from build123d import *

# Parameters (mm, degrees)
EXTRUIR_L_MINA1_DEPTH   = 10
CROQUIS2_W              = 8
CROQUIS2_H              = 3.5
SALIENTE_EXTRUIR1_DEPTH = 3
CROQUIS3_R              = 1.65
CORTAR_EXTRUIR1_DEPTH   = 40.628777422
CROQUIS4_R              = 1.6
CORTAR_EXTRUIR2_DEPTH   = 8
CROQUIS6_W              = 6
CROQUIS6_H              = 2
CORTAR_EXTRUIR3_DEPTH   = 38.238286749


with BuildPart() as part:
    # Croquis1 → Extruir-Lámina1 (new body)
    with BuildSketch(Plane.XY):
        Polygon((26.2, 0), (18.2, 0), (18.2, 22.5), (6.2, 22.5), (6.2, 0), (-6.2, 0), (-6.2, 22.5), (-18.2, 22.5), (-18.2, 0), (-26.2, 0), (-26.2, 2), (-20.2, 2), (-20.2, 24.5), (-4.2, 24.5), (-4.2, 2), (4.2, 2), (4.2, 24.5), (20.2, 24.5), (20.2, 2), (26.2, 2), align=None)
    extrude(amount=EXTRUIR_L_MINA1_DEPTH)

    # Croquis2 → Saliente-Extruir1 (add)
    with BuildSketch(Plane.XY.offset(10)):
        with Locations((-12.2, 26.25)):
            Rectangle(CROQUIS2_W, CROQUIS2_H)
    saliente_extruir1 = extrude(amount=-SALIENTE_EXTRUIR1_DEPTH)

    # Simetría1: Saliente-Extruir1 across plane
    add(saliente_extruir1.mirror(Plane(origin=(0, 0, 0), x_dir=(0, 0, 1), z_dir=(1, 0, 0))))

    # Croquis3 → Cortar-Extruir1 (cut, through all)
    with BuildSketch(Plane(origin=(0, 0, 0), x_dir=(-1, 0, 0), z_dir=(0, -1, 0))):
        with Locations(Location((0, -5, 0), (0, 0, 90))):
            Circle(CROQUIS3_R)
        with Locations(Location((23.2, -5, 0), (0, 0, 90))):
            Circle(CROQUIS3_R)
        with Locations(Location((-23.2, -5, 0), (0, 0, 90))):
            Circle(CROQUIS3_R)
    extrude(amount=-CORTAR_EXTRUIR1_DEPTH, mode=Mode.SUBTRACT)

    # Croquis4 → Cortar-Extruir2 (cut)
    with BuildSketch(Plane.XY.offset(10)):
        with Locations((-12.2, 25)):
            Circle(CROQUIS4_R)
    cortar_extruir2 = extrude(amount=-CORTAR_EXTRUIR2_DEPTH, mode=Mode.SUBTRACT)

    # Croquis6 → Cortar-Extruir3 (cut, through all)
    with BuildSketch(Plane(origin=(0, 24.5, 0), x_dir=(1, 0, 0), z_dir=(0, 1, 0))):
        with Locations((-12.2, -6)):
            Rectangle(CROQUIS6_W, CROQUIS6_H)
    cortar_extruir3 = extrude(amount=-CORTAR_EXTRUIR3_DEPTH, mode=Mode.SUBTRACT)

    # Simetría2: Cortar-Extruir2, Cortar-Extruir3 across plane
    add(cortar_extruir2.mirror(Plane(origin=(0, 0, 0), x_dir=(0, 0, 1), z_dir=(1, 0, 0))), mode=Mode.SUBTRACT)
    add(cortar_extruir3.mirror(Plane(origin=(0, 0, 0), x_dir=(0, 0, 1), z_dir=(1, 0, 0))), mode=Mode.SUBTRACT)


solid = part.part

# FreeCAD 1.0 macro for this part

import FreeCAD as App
import Part
import Sketcher

doc = App.newDocument("Part")
body = doc.addObject("PartDesign::Body", "Body")

# Sketch on XY plane
sketch1 = body.newObject("Sketcher::SketchObject", "Sketch")
sketch1.AttachmentSupport = (doc.getObject("XY_Plane"), [""])
sketch1.MapMode = "FlatFace"
sketch1.addGeometry(Part.LineSegment(App.Vector(18.2, 0, 0), App.Vector(26.2, 0, 0)), False)
sketch1.addGeometry(Part.LineSegment(App.Vector(26.2, 0, 0), App.Vector(26.2, 2, 0)), False)
sketch1.addGeometry(Part.LineSegment(App.Vector(26.2, 2, 0), App.Vector(20.2, 2, 0)), False)
sketch1.addGeometry(Part.LineSegment(App.Vector(20.2, 2, 0), App.Vector(20.2, 24.5, 0)), False)
sketch1.addGeometry(Part.LineSegment(App.Vector(20.2, 24.5, 0), App.Vector(4.2, 24.5, 0)), False)
sketch1.addGeometry(Part.LineSegment(App.Vector(4.2, 24.5, 0), App.Vector(4.2, 2, 0)), False)
sketch1.addGeometry(Part.LineSegment(App.Vector(4.2, 2, 0), App.Vector(-4.2, 2, 0)), False)
sketch1.addGeometry(Part.LineSegment(App.Vector(-4.2, 2, 0), App.Vector(-4.2, 24.5, 0)), False)
sketch1.addGeometry(Part.LineSegment(App.Vector(-4.2, 24.5, 0), App.Vector(-20.2, 24.5, 0)), False)
sketch1.addGeometry(Part.LineSegment(App.Vector(-20.2, 24.5, 0), App.Vector(-20.2, 2, 0)), False)
sketch1.addGeometry(Part.LineSegment(App.Vector(-20.2, 2, 0), App.Vector(-26.2, 2, 0)), False)
sketch1.addGeometry(Part.LineSegment(App.Vector(-26.2, 2, 0), App.Vector(-26.2, 0, 0)), False)
sketch1.addGeometry(Part.LineSegment(App.Vector(-26.2, 0, 0), App.Vector(-18.2, 0, 0)), False)
sketch1.addGeometry(Part.LineSegment(App.Vector(-18.2, 0, 0), App.Vector(-18.2, 22.5, 0)), False)
sketch1.addGeometry(Part.LineSegment(App.Vector(-18.2, 22.5, 0), App.Vector(-6.2, 22.5, 0)), False)
sketch1.addGeometry(Part.LineSegment(App.Vector(-6.2, 22.5, 0), App.Vector(-6.2, 0, 0)), False)
sketch1.addGeometry(Part.LineSegment(App.Vector(-6.2, 0, 0), App.Vector(6.2, 0, 0)), False)
sketch1.addGeometry(Part.LineSegment(App.Vector(6.2, 0, 0), App.Vector(6.2, 22.5, 0)), False)
sketch1.addGeometry(Part.LineSegment(App.Vector(6.2, 22.5, 0), App.Vector(18.2, 22.5, 0)), False)
sketch1.addGeometry(Part.LineSegment(App.Vector(18.2, 22.5, 0), App.Vector(18.2, 0, 0)), False)
sketch1.addConstraint(Sketcher.Constraint("Coincident", 0, 2, 1, 1))
sketch1.addConstraint(Sketcher.Constraint("Coincident", 1, 2, 2, 1))
sketch1.addConstraint(Sketcher.Constraint("Coincident", 2, 2, 3, 1))
sketch1.addConstraint(Sketcher.Constraint("Coincident", 3, 2, 4, 1))
sketch1.addConstraint(Sketcher.Constraint("Coincident", 4, 2, 5, 1))
sketch1.addConstraint(Sketcher.Constraint("Coincident", 5, 2, 6, 1))
sketch1.addConstraint(Sketcher.Constraint("Coincident", 6, 2, 7, 1))
sketch1.addConstraint(Sketcher.Constraint("Coincident", 7, 2, 8, 1))
sketch1.addConstraint(Sketcher.Constraint("Coincident", 8, 2, 9, 1))
sketch1.addConstraint(Sketcher.Constraint("Coincident", 9, 2, 10, 1))
sketch1.addConstraint(Sketcher.Constraint("Coincident", 10, 2, 11, 1))
sketch1.addConstraint(Sketcher.Constraint("Coincident", 11, 2, 12, 1))
sketch1.addConstraint(Sketcher.Constraint("Coincident", 12, 2, 13, 1))
sketch1.addConstraint(Sketcher.Constraint("Coincident", 13, 2, 14, 1))
sketch1.addConstraint(Sketcher.Constraint("Coincident", 14, 2, 15, 1))
sketch1.addConstraint(Sketcher.Constraint("Coincident", 15, 2, 16, 1))
sketch1.addConstraint(Sketcher.Constraint("Coincident", 16, 2, 17, 1))
sketch1.addConstraint(Sketcher.Constraint("Coincident", 17, 2, 18, 1))
sketch1.addConstraint(Sketcher.Constraint("Coincident", 18, 2, 19, 1))
sketch1.addConstraint(Sketcher.Constraint("Coincident", 19, 2, 0, 1))
sketch1.addConstraint(Sketcher.Constraint("Horizontal", 0))
sketch1.addConstraint(Sketcher.Constraint("Vertical", 1))
sketch1.addConstraint(Sketcher.Constraint("Horizontal", 2))
sketch1.addConstraint(Sketcher.Constraint("Vertical", 3))
sketch1.addConstraint(Sketcher.Constraint("Horizontal", 4))
sketch1.addConstraint(Sketcher.Constraint("Vertical", 5))
sketch1.addConstraint(Sketcher.Constraint("Horizontal", 6))
sketch1.addConstraint(Sketcher.Constraint("Vertical", 7))
sketch1.addConstraint(Sketcher.Constraint("Horizontal", 8))
sketch1.addConstraint(Sketcher.Constraint("Vertical", 9))
sketch1.addConstraint(Sketcher.Constraint("Horizontal", 10))
sketch1.addConstraint(Sketcher.Constraint("Vertical", 11))
sketch1.addConstraint(Sketcher.Constraint("Horizontal", 12))
sketch1.addConstraint(Sketcher.Constraint("Vertical", 13))
sketch1.addConstraint(Sketcher.Constraint("Horizontal", 14))
sketch1.addConstraint(Sketcher.Constraint("Vertical", 15))
sketch1.addConstraint(Sketcher.Constraint("Horizontal", 16))
sketch1.addConstraint(Sketcher.Constraint("Vertical", 17))
sketch1.addConstraint(Sketcher.Constraint("Horizontal", 18))
sketch1.addConstraint(Sketcher.Constraint("Vertical", 19))
sketch1.addConstraint(Sketcher.Constraint("Symmetric", 0, 2, 11, 2, -1, 1))
sketch1.addConstraint(Sketcher.Constraint("Symmetric", 15, 2, 16, 2, -1, 1))
sketch1.addConstraint(Sketcher.Constraint("Symmetric", 4, 2, 7, 2, -2))
sketch1.addConstraint(Sketcher.Constraint("Symmetric", 2, 2, 9, 2, -2))
sketch1.addConstraint(Sketcher.Constraint("Symmetric", 13, 2, 18, 2, -2))
sketch1.addConstraint(Sketcher.Constraint("PointOnObject", 0, 2, -1))
sketch1.addConstraint(Sketcher.Constraint("Horizontal", 2, 2, 5, 2))
sketch1.addConstraint(Sketcher.Constraint("Equal", 9, 13))
sketch1.addConstraint(Sketcher.Constraint("DistanceX", 0, 1, 0, 2, 8.0))
sketch1.addConstraint(Sketcher.Constraint("DistanceX", 2, 2, 2, 1, 6.0))
sketch1.addConstraint(Sketcher.Constraint("DistanceX", 4, 2, 4, 1, 16.0))
sketch1.addConstraint(Sketcher.Constraint("DistanceX", 14, 1, 14, 2, 12.0))
sketch1.addConstraint(Sketcher.Constraint("DistanceY", 1, 1, 1, 2, 2.0))
sketch1.addConstraint(Sketcher.Constraint("DistanceX", 6, 2, 6, 1, 8.4))
sketch1.addConstraint(Sketcher.Constraint("DistanceY", 3, 1, 3, 2, 22.5))
pad1 = body.newObject("PartDesign::Pad", "Pad")
pad1.Profile = sketch1
pad1.Length = 10

# Sketch on XY plane
sketch2 = body.newObject("Sketcher::SketchObject", "Sketch001")
sketch2.AttachmentSupport = (doc.getObject("XY_Plane"), [""])
sketch2.MapMode = "FlatFace"
sketch2.AttachmentOffset = App.Placement(App.Vector(0, 0, 10), App.Rotation())
sketch2.addGeometry(Part.LineSegment(App.Vector(-16.2, 28, 0), App.Vector(-16.2, 24.5, 0)), False)
sketch2.addGeometry(Part.LineSegment(App.Vector(-16.2, 24.5, 0), App.Vector(-8.2, 24.5, 0)), False)
sketch2.addGeometry(Part.LineSegment(App.Vector(-8.2, 24.5, 0), App.Vector(-8.2, 28, 0)), False)
sketch2.addGeometry(Part.LineSegment(App.Vector(-8.2, 28, 0), App.Vector(-16.2, 28, 0)), False)
sketch2.addConstraint(Sketcher.Constraint("Coincident", 0, 2, 1, 1))
sketch2.addConstraint(Sketcher.Constraint("Coincident", 1, 2, 2, 1))
sketch2.addConstraint(Sketcher.Constraint("Coincident", 2, 2, 3, 1))
sketch2.addConstraint(Sketcher.Constraint("Coincident", 3, 2, 0, 1))
sketch2.addConstraint(Sketcher.Constraint("Vertical", 0))
sketch2.addConstraint(Sketcher.Constraint("Horizontal", 1))
sketch2.addConstraint(Sketcher.Constraint("Vertical", 2))
sketch2.addConstraint(Sketcher.Constraint("Horizontal", 3))
sketch2.addConstraint(Sketcher.Constraint("DistanceX", 1, 1, 1, 2, 8.0))
sketch2.addConstraint(Sketcher.Constraint("DistanceY", 0, 2, 0, 1, 3.5))
sketch2.addConstraint(Sketcher.Constraint("DistanceY", -1, 1, 2, 2, 28.0))
sketch2.addConstraint(Sketcher.Constraint("DistanceX", 0, 2, -1, 1, 16.2))
pad2 = body.newObject("PartDesign::Pad", "Pad001")
pad2.Profile = sketch2
pad2.Length = 3
pad2.Reversed = True
doc.recompute()

mirrored = body.newObject("PartDesign::Mirrored", "Mirrored")
mirrored.Originals = [pad2]
mirrored.MirrorPlane = (doc.getObject("YZ_Plane"), [""])
body.Tip = mirrored

# Sketch on XZ plane
sketch3 = body.newObject("Sketcher::SketchObject", "Sketch002")
sketch3.AttachmentSupport = (doc.getObject("XZ_Plane"), [""])
sketch3.MapMode = "FlatFace"
sketch3.addGeometry(Part.Circle(App.Vector(0, 5, 0), App.Vector(0, 0, 1), 1.6), False)
sketch3.addGeometry(Part.Circle(App.Vector(-23.2, 5, 0), App.Vector(0, 0, 1), 1.6), False)
sketch3.addGeometry(Part.Circle(App.Vector(23.2, 5, 0), App.Vector(0, 0, 1), 1.6), False)
sketch3.addConstraint(Sketcher.Constraint("Equal", 0, 1))
sketch3.addConstraint(Sketcher.Constraint("Equal", 1, 2))
sketch3.addConstraint(Sketcher.Constraint("Symmetric", 1, 3, 2, 3, -2))
sketch3.addConstraint(Sketcher.Constraint("PointOnObject", 0, 3, -2))
sketch3.addConstraint(Sketcher.Constraint("Horizontal", 0, 3, 1, 3))
sketch3.addConstraint(Sketcher.Constraint("Diameter", 0, 3.3))
sketch3.addConstraint(Sketcher.Constraint("DistanceY", -1, 1, 0, 3, 5.0))
sketch3.addConstraint(Sketcher.Constraint("DistanceX", 1, 3, -1, 1, 23.2))
pocket1 = body.newObject("PartDesign::Pocket", "Pocket")
pocket1.Profile = sketch3
pocket1.Type = "ThroughAll"

# Sketch on XY plane
sketch4 = body.newObject("Sketcher::SketchObject", "Sketch003")
sketch4.AttachmentSupport = (doc.getObject("XY_Plane"), [""])
sketch4.MapMode = "FlatFace"
sketch4.AttachmentOffset = App.Placement(App.Vector(0, 0, 10), App.Rotation())
sketch4.addGeometry(Part.Circle(App.Vector(-12.2, 25, 0), App.Vector(0, 0, 1), 1.6), False)
sketch4.addConstraint(Sketcher.Constraint("Diameter", 0, 3.2))
sketch4.addConstraint(Sketcher.Constraint("DistanceY", -1, 1, 0, 3, 25.0))
sketch4.addConstraint(Sketcher.Constraint("DistanceX", 0, 3, -1, 1, 12.2))
pocket2 = body.newObject("PartDesign::Pocket", "Pocket001")
pocket2.Profile = sketch4
pocket2.Length = 8

# Sketch on XZ plane
sketch5 = body.newObject("Sketcher::SketchObject", "Sketch004")
sketch5.AttachmentSupport = (doc.getObject("XZ_Plane"), [""])
sketch5.MapMode = "FlatFace"
sketch5.AttachmentOffset = App.Placement(App.Vector(0, 0, -24.5), App.Rotation())
sketch5.addGeometry(Part.LineSegment(App.Vector(-15.2, 5, 0), App.Vector(-15.2, 7, 0)), False)
sketch5.addGeometry(Part.LineSegment(App.Vector(-15.2, 7, 0), App.Vector(-9.2, 7, 0)), False)
sketch5.addGeometry(Part.LineSegment(App.Vector(-9.2, 7, 0), App.Vector(-9.2, 5, 0)), False)
sketch5.addGeometry(Part.LineSegment(App.Vector(-9.2, 5, 0), App.Vector(-15.2, 5, 0)), False)
sketch5.addConstraint(Sketcher.Constraint("Coincident", 0, 2, 1, 1))
sketch5.addConstraint(Sketcher.Constraint("Coincident", 1, 2, 2, 1))
sketch5.addConstraint(Sketcher.Constraint("Coincident", 2, 2, 3, 1))
sketch5.addConstraint(Sketcher.Constraint("Coincident", 3, 2, 0, 1))
sketch5.addConstraint(Sketcher.Constraint("Vertical", 0))
sketch5.addConstraint(Sketcher.Constraint("Horizontal", 1))
sketch5.addConstraint(Sketcher.Constraint("Vertical", 2))
sketch5.addConstraint(Sketcher.Constraint("Horizontal", 3))
sketch5.addConstraint(Sketcher.Constraint("DistanceX", 1, 1, 1, 2, 6.0))
sketch5.addConstraint(Sketcher.Constraint("DistanceY", 0, 1, 0, 2, 2.0))
sketch5.addConstraint(Sketcher.Constraint("DistanceY", -1, 1, 0, 2, 7.0))
sketch5.addConstraint(Sketcher.Constraint("DistanceX", 0, 2, -1, 1, 15.2))
pocket3 = body.newObject("PartDesign::Pocket", "Pocket002")
pocket3.Profile = sketch5
pocket3.Type = "ThroughAll"
pocket3.Reversed = True
doc.recompute()

mirrored2 = body.newObject("PartDesign::Mirrored", "Mirrored001")
mirrored2.Originals = [pocket2, pocket3]
mirrored2.MirrorPlane = (doc.getObject("YZ_Plane"), [""])
body.Tip = mirrored2

doc.recompute()
